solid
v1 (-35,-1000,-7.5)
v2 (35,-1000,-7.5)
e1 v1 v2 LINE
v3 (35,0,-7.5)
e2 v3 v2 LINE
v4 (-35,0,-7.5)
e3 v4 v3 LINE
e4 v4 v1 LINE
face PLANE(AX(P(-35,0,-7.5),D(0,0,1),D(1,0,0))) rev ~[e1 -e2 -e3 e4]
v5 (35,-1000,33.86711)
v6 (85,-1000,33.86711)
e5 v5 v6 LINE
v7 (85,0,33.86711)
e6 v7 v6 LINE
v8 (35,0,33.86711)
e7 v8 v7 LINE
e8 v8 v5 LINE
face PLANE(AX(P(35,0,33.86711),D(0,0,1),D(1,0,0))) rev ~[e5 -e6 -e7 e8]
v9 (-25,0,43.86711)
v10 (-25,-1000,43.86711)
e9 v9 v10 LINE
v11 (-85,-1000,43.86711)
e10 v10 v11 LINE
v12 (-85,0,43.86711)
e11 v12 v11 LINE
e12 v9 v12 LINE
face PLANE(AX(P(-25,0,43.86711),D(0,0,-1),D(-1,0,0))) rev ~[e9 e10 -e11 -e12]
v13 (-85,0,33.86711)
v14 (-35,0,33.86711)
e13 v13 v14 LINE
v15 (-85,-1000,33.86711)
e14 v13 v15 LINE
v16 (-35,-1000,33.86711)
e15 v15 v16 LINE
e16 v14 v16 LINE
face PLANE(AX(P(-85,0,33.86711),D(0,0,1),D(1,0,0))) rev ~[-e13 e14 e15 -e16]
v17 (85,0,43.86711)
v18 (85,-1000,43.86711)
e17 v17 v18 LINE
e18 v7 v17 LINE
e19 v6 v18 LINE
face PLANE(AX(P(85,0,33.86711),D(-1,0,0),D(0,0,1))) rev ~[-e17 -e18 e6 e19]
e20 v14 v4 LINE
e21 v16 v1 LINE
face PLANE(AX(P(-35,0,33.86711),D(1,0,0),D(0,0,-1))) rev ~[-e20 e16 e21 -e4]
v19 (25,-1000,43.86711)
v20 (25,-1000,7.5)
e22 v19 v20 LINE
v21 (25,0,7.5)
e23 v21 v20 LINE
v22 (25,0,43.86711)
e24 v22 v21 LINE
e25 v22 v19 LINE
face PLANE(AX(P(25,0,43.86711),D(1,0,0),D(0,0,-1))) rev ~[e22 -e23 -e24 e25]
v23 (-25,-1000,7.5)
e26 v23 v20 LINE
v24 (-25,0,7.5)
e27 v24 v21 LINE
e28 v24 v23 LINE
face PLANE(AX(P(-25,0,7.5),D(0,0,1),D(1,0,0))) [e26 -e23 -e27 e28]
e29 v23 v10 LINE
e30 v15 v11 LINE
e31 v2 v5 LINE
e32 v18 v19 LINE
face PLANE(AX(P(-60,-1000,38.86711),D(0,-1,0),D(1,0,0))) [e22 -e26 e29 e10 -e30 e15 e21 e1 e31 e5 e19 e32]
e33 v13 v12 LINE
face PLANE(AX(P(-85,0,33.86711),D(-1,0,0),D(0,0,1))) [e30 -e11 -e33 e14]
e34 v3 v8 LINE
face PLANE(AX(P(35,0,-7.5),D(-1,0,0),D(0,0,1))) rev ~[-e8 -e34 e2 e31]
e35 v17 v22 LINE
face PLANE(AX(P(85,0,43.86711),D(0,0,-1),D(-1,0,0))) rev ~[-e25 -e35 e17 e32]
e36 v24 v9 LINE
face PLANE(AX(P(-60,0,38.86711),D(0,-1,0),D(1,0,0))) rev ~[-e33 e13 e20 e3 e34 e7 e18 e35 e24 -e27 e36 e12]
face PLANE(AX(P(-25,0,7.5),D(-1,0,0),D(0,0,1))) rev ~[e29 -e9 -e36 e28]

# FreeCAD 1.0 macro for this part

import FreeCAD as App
import Part
import Sketcher

V = App.Vector
Q = App.Units.Quantity


def add_polygon(sketch, points):
    """Adds a closed chain of lines whose ends are joined by coincident constraints."""
    first, n = sketch.GeometryCount, len(points)
    for a, b in zip(points, points[1:] + points[:1]):
        sketch.addGeometry(Part.LineSegment(App.Vector(*a, 0), App.Vector(*b, 0)), False)
    for i in range(n):
        sketch.addConstraint(Sketcher.Constraint("Coincident", first + i, 2, first + (i + 1) % n, 1))

doc = App.newDocument("Part")
params = doc.addObject("Spreadsheet::Sheet", "Params")
for row, (alias, value) in enumerate([
    ("sketch1_width", "50 mm"),
    ("sketch1_width2", "70 mm"),
    ("sketch1_height", "10 mm"),
    ("pad1_length", "1000 mm"),
], start=1):
    params.set(f"A{row}", alias)
    params.set(f"B{row}", "=" + value)
    params.setAlias(f"B{row}", alias)

body = doc.addObject("PartDesign::Body", "Body")

# Sketch on XZ plane
sketch1 = doc.addObject("Sketcher::SketchObject", "Sketch")
body.addObject(sketch1)
sketch1.AttachmentSupport = (doc.XZ_Plane, [""])
sketch1.MapMode = "FlatFace"
add_polygon(sketch1, [(-85, 44), (-85, 34), (-35, 34), (-35, -8), (35, -8), (35, 34), (85, 34), (85, 44), (25, 44), (25, 8), (-25, 8), (-25, 44)])  # lines 0-11
sketch1.addConstraint(Sketcher.Constraint("Vertical", 0))
sketch1.addConstraint(Sketcher.Constraint("Horizontal", 1))
sketch1.addConstraint(Sketcher.Constraint("Vertical", 2))
sketch1.addConstraint(Sketcher.Constraint("Horizontal", 3))
sketch1.addConstraint(Sketcher.Constraint("Vertical", 4))
sketch1.addConstraint(Sketcher.Constraint("Horizontal", 5))
sketch1.addConstraint(Sketcher.Constraint("Vertical", 6))
sketch1.addConstraint(Sketcher.Constraint("Horizontal", 7))
sketch1.addConstraint(Sketcher.Constraint("Vertical", 8))
sketch1.addConstraint(Sketcher.Constraint("Horizontal", 9))
sketch1.addConstraint(Sketcher.Constraint("Vertical", 10))
sketch1.addConstraint(Sketcher.Constraint("Horizontal", 11))
sketch1.addConstraint(Sketcher.Constraint("Symmetric", 1, 2, 4, 2, -2))
sketch1.addConstraint(Sketcher.Constraint("Symmetric", 7, 2, 10, 2, -2))
sketch1.addConstraint(Sketcher.Constraint("Equal", 1, 5))
sketch1.addConstraint(Sketcher.Constraint("Equal", 5, 9))
sketch1.addConstraint(Sketcher.Constraint("DistanceX", 1, 1, 1, 2, Q("50 mm")))
sketch1.addConstraint(Sketcher.Constraint("DistanceX", 3, 1, 3, 2, Q("70 mm")))
sketch1.addConstraint(Sketcher.Constraint("DistanceY", 0, 2, 0, 1, Q("10 mm")))
sketch1.addConstraint(Sketcher.Constraint("DistanceY", 3, 2, 8, 2, Q("15 mm")))
sketch1.addConstraint(Sketcher.Constraint("DistanceY", 2, 2, -1, 1, Q("7.5 mm")))
sketch1.addConstraint(Sketcher.Constraint("DistanceY", 2, 2, 2, 1, Q("41.36711 mm")))
sketch1.setExpression("Constraints[28]", "Params.sketch1_width")
sketch1.setExpression("Constraints[29]", "Params.sketch1_width2")
sketch1.setExpression("Constraints[30]", "Params.sketch1_height")
pad1 = doc.addObject("PartDesign::Pad", "Pad")
body.addObject(pad1)
pad1.Profile = sketch1
pad1.setExpression("Length", "Params.pad1_length")

doc.recompute()
